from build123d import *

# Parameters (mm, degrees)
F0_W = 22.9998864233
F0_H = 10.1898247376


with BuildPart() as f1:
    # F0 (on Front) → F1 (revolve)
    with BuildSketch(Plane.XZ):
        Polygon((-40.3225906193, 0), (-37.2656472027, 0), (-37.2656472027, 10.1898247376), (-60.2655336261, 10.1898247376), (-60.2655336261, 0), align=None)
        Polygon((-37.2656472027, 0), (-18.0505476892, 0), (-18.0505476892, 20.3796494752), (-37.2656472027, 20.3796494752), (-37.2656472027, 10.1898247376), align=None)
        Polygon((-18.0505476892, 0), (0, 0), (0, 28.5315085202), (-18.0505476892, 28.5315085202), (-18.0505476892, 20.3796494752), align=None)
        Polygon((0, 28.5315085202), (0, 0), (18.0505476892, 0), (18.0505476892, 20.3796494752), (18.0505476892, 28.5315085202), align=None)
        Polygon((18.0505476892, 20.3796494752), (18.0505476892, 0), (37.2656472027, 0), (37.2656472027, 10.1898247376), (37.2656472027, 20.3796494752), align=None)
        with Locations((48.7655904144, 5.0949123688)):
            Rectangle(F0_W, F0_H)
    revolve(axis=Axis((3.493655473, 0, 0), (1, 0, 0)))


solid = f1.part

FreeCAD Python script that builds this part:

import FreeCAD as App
import Part
import Sketcher


def add_polygon(sketch, points):
    """Adds a closed chain of lines whose ends are joined by coincident constraints."""
    first, n = sketch.GeometryCount, len(points)
    for a, b in zip(points, points[1:] + points[:1]):
        sketch.addGeometry(Part.LineSegment(App.Vector(*a, 0), App.Vector(*b, 0)), False)
    for i in range(n):
        sketch.addConstraint(Sketcher.Constraint("Coincident", first + i, 2, first + (i + 1) % n, 1))

doc = App.newDocument("Part")
body = doc.addObject("PartDesign::Body", "Body")

# Sketch on XZ plane
sketch1 = body.newObject("Sketcher::SketchObject", "Sketch")
sketch1.AttachmentSupport = (doc.getObject("XZ_Plane"), [""])
sketch1.MapMode = "FlatFace"
add_polygon(sketch1, [(-37, 10), (-60, 10), (-60, 0), (60, 0), (60, 10), (37, 10), (37, 20), (18, 20), (18, 29), (-18, 29), (-18, 20), (-37, 20)])  # lines 0-11
sketch1.addConstraint(Sketcher.Constraint("Horizontal", 0))
sketch1.addConstraint(Sketcher.Constraint("Vertical", 1))
sketch1.addConstraint(Sketcher.Constraint("Horizontal", 2))
sketch1.addConstraint(Sketcher.Constraint("Vertical", 3))
sketch1.addConstraint(Sketcher.Constraint("Horizontal", 4))
sketch1.addConstraint(Sketcher.Constraint("Vertical", 5))
sketch1.addConstraint(Sketcher.Constraint("Horizontal", 6))
sketch1.addConstraint(Sketcher.Constraint("Vertical", 7))
sketch1.addConstraint(Sketcher.Constraint("Horizontal", 8))
sketch1.addConstraint(Sketcher.Constraint("Vertical", 9))
sketch1.addConstraint(Sketcher.Constraint("Horizontal", 10))
sketch1.addConstraint(Sketcher.Constraint("Vertical", 11))
sketch1.addConstraint(Sketcher.Constraint("Symmetric", 1, 2, 2, 2, -1, 1))
sketch1.addConstraint(Sketcher.Constraint("Symmetric", 6, 2, 9, 2, -2))
sketch1.addConstraint(Sketcher.Constraint("Symmetric", 4, 2, 11, 2, -2))
sketch1.addConstraint(Sketcher.Constraint("Equal", 3, 5))
sketch1.addConstraint(Sketcher.Constraint("DistanceX", 6, 2, 6, 1, 19.2151))
sketch1.addConstraint(Sketcher.Constraint("DistanceY", 7, 1, 7, 2, 8.151859))
sketch1.addConstraint(Sketcher.Constraint("DistanceX", 0, 2, 0, 1, 22.999886))
sketch1.addConstraint(Sketcher.Constraint("DistanceX", 2, 1, 2, 2, 120.531067))
sketch1.addConstraint(Sketcher.Constraint("DistanceY", 1, 2, 1, 1, 10.189825))
revolution = body.newObject("PartDesign::Revolution", "Revolution")
revolution.Profile = sketch1
revolution.ReferenceAxis = (sketch1, ["H_Axis"])
revolution.Angle = 360

doc.recompute()
